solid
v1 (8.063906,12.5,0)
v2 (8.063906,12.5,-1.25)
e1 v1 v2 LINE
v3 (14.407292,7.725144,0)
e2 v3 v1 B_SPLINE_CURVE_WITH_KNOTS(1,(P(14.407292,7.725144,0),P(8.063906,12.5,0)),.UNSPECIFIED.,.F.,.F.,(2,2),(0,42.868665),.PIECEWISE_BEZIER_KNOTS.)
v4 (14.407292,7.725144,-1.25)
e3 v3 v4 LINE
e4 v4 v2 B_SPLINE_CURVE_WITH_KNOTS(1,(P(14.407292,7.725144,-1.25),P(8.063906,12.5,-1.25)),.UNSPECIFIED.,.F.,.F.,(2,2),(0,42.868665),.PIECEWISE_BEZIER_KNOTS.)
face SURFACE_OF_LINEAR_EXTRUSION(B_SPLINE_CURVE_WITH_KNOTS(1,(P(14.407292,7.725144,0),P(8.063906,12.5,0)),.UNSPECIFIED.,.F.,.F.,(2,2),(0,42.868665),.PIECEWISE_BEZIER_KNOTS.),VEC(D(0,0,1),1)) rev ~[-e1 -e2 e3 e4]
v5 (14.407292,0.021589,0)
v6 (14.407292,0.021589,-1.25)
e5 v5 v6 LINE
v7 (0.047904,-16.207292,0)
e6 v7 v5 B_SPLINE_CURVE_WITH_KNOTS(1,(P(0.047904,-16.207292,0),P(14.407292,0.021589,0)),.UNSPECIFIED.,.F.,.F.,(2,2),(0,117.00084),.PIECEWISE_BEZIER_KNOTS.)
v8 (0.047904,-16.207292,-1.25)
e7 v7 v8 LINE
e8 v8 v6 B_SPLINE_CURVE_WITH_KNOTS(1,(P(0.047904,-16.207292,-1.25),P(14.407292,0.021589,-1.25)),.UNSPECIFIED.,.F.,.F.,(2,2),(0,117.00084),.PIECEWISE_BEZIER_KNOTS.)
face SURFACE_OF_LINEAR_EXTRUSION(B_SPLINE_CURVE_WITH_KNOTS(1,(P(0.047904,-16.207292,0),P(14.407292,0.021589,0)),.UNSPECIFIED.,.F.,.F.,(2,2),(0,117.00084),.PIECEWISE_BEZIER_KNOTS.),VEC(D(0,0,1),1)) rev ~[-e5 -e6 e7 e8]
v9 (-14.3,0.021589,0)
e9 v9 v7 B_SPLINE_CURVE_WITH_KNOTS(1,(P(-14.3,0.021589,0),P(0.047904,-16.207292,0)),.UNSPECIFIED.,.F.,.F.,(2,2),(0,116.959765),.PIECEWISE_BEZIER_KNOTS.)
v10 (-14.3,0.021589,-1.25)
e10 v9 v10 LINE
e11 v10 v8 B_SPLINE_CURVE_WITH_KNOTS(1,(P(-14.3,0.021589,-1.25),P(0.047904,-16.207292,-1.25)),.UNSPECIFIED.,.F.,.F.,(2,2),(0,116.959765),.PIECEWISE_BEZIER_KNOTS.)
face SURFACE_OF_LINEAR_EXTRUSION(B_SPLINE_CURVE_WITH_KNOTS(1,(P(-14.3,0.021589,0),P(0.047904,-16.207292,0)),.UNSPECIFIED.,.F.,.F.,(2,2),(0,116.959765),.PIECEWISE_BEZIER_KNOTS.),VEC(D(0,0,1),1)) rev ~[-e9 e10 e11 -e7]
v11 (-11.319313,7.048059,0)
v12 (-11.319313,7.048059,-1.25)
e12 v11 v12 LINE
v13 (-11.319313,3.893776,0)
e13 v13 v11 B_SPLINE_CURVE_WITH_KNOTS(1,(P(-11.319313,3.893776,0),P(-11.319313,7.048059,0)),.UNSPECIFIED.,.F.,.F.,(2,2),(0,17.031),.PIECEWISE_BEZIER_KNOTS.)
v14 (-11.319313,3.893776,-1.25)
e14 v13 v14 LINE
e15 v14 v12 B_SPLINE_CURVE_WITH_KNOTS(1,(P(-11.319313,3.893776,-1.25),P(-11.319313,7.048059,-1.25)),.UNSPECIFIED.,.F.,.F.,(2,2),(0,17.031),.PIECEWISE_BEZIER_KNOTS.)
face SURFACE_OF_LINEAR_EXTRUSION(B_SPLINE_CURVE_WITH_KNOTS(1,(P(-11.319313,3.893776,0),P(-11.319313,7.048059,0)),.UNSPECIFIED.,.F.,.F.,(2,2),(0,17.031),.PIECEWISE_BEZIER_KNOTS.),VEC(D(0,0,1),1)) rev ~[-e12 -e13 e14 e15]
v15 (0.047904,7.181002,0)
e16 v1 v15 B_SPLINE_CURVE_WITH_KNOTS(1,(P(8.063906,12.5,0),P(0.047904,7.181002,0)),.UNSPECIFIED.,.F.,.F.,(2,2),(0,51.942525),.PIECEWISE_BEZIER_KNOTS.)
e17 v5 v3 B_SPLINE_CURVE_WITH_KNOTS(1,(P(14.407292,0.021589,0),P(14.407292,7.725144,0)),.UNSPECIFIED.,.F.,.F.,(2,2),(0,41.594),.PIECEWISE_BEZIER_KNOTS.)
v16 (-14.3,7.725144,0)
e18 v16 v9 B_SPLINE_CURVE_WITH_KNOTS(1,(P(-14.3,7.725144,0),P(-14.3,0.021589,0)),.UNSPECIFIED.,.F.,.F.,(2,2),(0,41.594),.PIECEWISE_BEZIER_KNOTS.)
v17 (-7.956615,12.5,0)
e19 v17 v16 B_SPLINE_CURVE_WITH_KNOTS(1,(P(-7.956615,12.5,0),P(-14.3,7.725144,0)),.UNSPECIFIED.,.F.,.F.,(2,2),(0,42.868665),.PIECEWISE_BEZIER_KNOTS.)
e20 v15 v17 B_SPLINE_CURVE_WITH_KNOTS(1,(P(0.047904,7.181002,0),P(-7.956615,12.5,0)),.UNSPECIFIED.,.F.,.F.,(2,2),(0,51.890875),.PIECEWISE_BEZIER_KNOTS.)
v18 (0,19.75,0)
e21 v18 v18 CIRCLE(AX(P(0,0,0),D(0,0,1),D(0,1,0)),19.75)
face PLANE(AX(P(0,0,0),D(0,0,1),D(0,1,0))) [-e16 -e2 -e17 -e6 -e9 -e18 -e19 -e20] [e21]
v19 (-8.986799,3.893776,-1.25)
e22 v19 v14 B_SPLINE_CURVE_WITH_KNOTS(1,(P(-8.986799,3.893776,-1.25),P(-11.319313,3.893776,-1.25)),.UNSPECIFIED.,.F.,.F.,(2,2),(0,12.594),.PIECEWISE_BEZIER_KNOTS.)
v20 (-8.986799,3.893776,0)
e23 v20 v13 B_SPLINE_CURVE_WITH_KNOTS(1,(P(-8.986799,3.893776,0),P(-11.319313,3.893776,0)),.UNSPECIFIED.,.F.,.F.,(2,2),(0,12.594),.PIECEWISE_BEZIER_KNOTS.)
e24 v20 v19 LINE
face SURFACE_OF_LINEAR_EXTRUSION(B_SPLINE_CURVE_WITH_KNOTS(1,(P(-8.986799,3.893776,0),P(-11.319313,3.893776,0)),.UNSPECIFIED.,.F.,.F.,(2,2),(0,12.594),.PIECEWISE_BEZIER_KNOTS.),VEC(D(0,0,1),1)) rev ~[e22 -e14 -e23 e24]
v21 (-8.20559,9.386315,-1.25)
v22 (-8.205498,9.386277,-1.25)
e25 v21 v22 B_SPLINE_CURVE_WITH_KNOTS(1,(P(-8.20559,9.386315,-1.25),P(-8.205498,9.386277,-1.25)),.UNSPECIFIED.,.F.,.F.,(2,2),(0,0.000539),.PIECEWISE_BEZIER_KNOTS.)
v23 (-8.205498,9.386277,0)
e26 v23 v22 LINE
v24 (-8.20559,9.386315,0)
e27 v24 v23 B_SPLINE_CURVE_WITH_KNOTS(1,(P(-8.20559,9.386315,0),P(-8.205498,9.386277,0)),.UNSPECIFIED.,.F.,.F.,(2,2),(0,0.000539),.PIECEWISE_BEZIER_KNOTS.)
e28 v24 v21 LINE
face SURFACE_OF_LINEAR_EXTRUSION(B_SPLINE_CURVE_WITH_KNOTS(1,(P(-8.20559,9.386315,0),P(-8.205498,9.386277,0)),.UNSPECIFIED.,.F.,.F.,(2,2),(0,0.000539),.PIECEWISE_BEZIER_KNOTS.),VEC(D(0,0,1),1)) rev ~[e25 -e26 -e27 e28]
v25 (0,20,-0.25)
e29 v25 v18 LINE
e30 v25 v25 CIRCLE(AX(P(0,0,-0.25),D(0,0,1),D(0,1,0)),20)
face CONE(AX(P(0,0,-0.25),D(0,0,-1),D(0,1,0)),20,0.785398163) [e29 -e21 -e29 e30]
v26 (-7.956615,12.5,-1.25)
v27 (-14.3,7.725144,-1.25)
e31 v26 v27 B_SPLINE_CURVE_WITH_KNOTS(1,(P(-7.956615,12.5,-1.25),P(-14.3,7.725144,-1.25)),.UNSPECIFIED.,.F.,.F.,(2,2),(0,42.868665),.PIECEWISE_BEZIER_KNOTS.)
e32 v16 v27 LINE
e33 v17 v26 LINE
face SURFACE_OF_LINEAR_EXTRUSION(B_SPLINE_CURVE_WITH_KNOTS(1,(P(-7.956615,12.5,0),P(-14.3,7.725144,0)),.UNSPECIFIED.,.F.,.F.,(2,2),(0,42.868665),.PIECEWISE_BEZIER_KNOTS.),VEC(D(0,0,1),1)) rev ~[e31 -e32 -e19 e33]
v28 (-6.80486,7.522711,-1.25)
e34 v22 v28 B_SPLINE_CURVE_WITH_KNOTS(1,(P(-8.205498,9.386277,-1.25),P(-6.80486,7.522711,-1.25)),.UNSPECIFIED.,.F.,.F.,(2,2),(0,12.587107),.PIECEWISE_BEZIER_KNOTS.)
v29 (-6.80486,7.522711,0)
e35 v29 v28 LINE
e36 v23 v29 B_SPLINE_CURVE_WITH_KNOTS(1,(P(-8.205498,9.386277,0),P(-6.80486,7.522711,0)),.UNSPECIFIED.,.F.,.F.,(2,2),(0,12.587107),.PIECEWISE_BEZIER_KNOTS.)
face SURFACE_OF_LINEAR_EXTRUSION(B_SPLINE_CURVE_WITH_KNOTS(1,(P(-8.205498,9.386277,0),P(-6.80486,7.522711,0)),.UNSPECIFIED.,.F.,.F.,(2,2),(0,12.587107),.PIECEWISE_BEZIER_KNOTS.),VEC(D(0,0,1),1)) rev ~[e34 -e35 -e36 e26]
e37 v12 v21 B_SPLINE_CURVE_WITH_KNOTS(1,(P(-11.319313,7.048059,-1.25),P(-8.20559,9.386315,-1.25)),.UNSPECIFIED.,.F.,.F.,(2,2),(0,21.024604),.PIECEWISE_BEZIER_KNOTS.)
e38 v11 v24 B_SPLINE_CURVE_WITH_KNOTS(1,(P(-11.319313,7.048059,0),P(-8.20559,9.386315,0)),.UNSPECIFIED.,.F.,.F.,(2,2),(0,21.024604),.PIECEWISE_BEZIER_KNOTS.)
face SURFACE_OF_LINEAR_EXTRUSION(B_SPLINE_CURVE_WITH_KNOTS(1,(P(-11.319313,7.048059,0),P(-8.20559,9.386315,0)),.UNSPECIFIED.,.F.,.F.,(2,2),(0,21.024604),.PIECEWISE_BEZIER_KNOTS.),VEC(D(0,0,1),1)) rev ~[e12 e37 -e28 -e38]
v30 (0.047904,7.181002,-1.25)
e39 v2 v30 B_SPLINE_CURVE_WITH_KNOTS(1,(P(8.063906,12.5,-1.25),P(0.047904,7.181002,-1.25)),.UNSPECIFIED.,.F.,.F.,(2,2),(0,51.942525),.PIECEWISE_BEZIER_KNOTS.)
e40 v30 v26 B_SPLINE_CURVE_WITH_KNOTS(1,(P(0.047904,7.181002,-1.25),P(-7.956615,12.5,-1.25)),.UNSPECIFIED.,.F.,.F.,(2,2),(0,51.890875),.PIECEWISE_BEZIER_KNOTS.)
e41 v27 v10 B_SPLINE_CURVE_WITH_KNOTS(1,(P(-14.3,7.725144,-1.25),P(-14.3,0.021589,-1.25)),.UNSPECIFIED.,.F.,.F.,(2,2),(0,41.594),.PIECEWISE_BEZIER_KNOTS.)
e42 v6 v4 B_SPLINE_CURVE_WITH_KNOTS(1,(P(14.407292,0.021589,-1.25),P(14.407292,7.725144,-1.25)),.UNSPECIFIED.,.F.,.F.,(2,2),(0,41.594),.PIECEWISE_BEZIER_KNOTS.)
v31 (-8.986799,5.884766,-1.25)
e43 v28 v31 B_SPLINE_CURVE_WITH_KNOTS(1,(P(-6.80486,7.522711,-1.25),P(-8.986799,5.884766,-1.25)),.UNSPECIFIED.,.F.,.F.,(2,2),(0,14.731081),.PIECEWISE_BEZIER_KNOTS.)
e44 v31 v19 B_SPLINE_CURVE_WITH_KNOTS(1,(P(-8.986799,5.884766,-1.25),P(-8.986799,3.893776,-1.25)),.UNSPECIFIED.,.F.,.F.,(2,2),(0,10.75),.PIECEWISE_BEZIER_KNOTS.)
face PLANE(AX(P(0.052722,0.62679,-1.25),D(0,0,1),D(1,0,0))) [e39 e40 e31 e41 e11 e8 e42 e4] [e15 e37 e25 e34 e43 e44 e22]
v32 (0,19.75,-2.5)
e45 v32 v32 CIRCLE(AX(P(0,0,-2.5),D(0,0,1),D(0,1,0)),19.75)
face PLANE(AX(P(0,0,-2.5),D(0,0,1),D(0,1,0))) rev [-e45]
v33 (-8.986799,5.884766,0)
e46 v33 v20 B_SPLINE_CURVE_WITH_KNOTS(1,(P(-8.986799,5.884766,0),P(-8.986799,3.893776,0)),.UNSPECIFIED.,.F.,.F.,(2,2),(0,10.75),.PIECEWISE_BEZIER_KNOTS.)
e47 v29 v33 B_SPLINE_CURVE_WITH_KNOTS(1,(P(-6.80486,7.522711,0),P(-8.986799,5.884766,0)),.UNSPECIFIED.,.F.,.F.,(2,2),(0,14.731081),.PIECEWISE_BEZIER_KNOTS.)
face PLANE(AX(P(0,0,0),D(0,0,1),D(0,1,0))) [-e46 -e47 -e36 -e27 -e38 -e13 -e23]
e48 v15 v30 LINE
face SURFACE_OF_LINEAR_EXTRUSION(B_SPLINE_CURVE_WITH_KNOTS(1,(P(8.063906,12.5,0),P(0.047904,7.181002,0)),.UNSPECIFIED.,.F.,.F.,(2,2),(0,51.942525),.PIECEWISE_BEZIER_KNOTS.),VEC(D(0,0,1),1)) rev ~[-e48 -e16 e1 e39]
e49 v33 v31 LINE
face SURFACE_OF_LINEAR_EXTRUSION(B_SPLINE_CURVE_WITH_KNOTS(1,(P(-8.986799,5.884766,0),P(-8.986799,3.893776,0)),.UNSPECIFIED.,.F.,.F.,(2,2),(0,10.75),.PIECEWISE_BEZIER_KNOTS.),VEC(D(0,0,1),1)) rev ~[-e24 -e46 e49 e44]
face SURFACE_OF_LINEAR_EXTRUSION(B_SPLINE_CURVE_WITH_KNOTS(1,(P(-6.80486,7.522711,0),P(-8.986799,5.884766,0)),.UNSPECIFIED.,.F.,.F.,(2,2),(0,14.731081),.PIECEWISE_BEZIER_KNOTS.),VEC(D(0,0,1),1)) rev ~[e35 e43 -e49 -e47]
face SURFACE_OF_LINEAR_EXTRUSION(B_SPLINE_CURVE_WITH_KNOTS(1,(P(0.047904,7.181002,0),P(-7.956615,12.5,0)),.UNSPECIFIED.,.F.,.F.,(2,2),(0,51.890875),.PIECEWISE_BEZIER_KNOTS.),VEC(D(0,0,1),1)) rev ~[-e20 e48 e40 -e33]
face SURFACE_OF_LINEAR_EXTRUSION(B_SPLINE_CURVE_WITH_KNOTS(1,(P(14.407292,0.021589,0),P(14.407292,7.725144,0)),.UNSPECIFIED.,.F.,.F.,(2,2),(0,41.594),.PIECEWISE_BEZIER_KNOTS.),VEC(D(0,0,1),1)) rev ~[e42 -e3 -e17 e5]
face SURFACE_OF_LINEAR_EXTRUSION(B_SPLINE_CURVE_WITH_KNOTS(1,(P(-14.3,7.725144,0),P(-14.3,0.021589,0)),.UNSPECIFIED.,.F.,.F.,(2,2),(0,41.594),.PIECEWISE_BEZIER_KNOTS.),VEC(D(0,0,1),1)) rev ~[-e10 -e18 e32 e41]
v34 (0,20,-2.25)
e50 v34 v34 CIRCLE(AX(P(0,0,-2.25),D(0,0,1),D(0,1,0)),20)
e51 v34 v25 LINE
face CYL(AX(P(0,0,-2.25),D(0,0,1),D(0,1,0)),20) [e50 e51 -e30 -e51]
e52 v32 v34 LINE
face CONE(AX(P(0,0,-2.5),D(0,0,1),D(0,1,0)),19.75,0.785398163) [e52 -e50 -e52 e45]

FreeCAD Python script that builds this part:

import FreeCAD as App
import Part
import Sketcher

V = App.Vector

doc = App.newDocument("Part")
body = doc.addObject("PartDesign::Body", "Body")

sketch1 = body.newObject("Sketcher::SketchObject", "Sketch")
sketch1.AttachmentSupport = (doc.getObject("YZ_Plane"), [""])
sketch1.MapMode = "FlatFace"
sketch1.addGeometry([
    Part.LineSegment(V(0, 0, 0), V(0, -2.5, 0)),
    Part.LineSegment(V(0, -2.5, 0), V(19.75, -2.5, 0)),
    Part.LineSegment(V(19.75, -2.5, 0), V(20, -2.25, 0)),
    Part.LineSegment(V(20, -2.25, 0), V(20, -0.25, 0)),
    Part.LineSegment(V(20, -0.25, 0), V(19.75, 0, 0)),
    Part.LineSegment(V(19.75, 0, 0), V(0, 0, 0)),
], False)
sketch1.addConstraint([
    Sketcher.Constraint("Coincident", 0, 2, 1, 1),
    Sketcher.Constraint("Coincident", 1, 2, 2, 1),
    Sketcher.Constraint("Coincident", 2, 2, 3, 1),
    Sketcher.Constraint("Coincident", 3, 2, 4, 1),
    Sketcher.Constraint("Coincident", 4, 2, 5, 1),
    Sketcher.Constraint("Coincident", 5, 2, 0, 1),
    Sketcher.Constraint("Vertical", 0),
    Sketcher.Constraint("Horizontal", 1),
    Sketcher.Constraint("Vertical", 3),
    Sketcher.Constraint("Horizontal", 5),
    Sketcher.Constraint("Coincident", 5, 2, -1, 1),
    Sketcher.Constraint("Perpendicular", 2, 4),
    Sketcher.Constraint("Vertical", 1, 2, 4, 2),
    Sketcher.Constraint("Equal", 2, 4),
    Sketcher.Constraint("DistanceY", 3, 1, 3, 2, 2.0),
    Sketcher.Constraint("DistanceY", 0, 2, 0, 1, 2.5),
    Sketcher.Constraint("DistanceX", -1, 1, 2, 2, 20.0),
])
revolution = body.newObject("PartDesign::Revolution", "Revolution")
revolution.Profile = sketch1
revolution.ReferenceAxis = (sketch1, ["V_Axis"])
revolution.Angle = 360

sketch2 = body.newObject("Sketcher::SketchObject", "Sketch001")
sketch2.AttachmentSupport = (doc.getObject("XY_Plane"), [""])
sketch2.MapMode = "FlatFace"
sketch2.addGeometry([
    Part.BSplineCurve([V(-7.956615, 12.5, 0), V(-14.3, 7.725144, 0)], [2, 2], [0, 42.868665], False, 1, [1, 1], False),
    Part.BSplineCurve([V(-14.3, 7.725144, 0), V(-14.3, 0.021589, 0)], [2, 2], [0, 41.594], False, 1, [1, 1], False),
    Part.BSplineCurve([V(-14.3, 0.021589, 0), V(0.047904, -16.207292, 0)], [2, 2], [0, 116.959765], False, 1, [1, 1], False),
    Part.BSplineCurve([V(0.047904, -16.207292, 0), V(14.407292, 0.021589, 0)], [2, 2], [0, 117.00084], False, 1, [1, 1], False),
    Part.BSplineCurve([V(14.407292, 0.021589, 0), V(14.407292, 7.725144, 0)], [2, 2], [0, 41.594], False, 1, [1, 1], False),
    Part.BSplineCurve([V(14.407292, 7.725144, 0), V(8.063906, 12.5, 0)], [2, 2], [0, 42.868665], False, 1, [1, 1], False),
    Part.BSplineCurve([V(8.063906, 12.5, 0), V(0.047904, 7.181002, 0)], [2, 2], [0, 51.942525], False, 1, [1, 1], False),
    Part.BSplineCurve([V(0.047904, 7.181002, 0), V(-7.956615, 12.5, 0)], [2, 2], [0, 51.890875], False, 1, [1, 1], False),
    Part.BSplineCurve([V(-8.20559, 9.386315, 0), V(-8.205498, 9.386277, 0)], [2, 2], [0, 0.000539], False, 1, [1, 1], False),
    Part.BSplineCurve([V(-8.205498, 9.386277, 0), V(-6.80486, 7.522711, 0)], [2, 2], [0, 12.587107], False, 1, [1, 1], False),
    Part.BSplineCurve([V(-6.80486, 7.522711, 0), V(-8.986799, 5.884766, 0)], [2, 2], [0, 14.731081], False, 1, [1, 1], False),
    Part.BSplineCurve([V(-8.986799, 5.884766, 0), V(-8.986799, 3.893776, 0)], [2, 2], [0, 10.75], False, 1, [1, 1], False),
    Part.BSplineCurve([V(-8.986799, 3.893776, 0), V(-11.319313, 3.893776, 0)], [2, 2], [0, 12.594], False, 1, [1, 1], False),
    Part.BSplineCurve([V(-11.319313, 3.893776, 0), V(-11.319313, 7.048059, 0)], [2, 2], [0, 17.031], False, 1, [1, 1], False),
    Part.BSplineCurve([V(-11.319313, 7.048059, 0), V(-8.20559, 9.386315, 0)], [2, 2], [0, 21.024604], False, 1, [1, 1], False),
], False)
sketch2.addConstraint([
    Sketcher.Constraint("Block", 0),
    Sketcher.Constraint("Block", 1),
    Sketcher.Constraint("Block", 2),
    Sketcher.Constraint("Block", 3),
    Sketcher.Constraint("Block", 4),
    Sketcher.Constraint("Block", 5),
    Sketcher.Constraint("Block", 6),
    Sketcher.Constraint("Block", 7),
    Sketcher.Constraint("Block", 8),
    Sketcher.Constraint("Block", 9),
    Sketcher.Constraint("Block", 10),
    Sketcher.Constraint("Block", 11),
    Sketcher.Constraint("Block", 12),
    Sketcher.Constraint("Block", 13),
    Sketcher.Constraint("Block", 14),
])
pocket1 = body.newObject("PartDesign::Pocket", "Pocket")
pocket1.Profile = sketch2
pocket1.Length = 1.25

doc.recompute()
